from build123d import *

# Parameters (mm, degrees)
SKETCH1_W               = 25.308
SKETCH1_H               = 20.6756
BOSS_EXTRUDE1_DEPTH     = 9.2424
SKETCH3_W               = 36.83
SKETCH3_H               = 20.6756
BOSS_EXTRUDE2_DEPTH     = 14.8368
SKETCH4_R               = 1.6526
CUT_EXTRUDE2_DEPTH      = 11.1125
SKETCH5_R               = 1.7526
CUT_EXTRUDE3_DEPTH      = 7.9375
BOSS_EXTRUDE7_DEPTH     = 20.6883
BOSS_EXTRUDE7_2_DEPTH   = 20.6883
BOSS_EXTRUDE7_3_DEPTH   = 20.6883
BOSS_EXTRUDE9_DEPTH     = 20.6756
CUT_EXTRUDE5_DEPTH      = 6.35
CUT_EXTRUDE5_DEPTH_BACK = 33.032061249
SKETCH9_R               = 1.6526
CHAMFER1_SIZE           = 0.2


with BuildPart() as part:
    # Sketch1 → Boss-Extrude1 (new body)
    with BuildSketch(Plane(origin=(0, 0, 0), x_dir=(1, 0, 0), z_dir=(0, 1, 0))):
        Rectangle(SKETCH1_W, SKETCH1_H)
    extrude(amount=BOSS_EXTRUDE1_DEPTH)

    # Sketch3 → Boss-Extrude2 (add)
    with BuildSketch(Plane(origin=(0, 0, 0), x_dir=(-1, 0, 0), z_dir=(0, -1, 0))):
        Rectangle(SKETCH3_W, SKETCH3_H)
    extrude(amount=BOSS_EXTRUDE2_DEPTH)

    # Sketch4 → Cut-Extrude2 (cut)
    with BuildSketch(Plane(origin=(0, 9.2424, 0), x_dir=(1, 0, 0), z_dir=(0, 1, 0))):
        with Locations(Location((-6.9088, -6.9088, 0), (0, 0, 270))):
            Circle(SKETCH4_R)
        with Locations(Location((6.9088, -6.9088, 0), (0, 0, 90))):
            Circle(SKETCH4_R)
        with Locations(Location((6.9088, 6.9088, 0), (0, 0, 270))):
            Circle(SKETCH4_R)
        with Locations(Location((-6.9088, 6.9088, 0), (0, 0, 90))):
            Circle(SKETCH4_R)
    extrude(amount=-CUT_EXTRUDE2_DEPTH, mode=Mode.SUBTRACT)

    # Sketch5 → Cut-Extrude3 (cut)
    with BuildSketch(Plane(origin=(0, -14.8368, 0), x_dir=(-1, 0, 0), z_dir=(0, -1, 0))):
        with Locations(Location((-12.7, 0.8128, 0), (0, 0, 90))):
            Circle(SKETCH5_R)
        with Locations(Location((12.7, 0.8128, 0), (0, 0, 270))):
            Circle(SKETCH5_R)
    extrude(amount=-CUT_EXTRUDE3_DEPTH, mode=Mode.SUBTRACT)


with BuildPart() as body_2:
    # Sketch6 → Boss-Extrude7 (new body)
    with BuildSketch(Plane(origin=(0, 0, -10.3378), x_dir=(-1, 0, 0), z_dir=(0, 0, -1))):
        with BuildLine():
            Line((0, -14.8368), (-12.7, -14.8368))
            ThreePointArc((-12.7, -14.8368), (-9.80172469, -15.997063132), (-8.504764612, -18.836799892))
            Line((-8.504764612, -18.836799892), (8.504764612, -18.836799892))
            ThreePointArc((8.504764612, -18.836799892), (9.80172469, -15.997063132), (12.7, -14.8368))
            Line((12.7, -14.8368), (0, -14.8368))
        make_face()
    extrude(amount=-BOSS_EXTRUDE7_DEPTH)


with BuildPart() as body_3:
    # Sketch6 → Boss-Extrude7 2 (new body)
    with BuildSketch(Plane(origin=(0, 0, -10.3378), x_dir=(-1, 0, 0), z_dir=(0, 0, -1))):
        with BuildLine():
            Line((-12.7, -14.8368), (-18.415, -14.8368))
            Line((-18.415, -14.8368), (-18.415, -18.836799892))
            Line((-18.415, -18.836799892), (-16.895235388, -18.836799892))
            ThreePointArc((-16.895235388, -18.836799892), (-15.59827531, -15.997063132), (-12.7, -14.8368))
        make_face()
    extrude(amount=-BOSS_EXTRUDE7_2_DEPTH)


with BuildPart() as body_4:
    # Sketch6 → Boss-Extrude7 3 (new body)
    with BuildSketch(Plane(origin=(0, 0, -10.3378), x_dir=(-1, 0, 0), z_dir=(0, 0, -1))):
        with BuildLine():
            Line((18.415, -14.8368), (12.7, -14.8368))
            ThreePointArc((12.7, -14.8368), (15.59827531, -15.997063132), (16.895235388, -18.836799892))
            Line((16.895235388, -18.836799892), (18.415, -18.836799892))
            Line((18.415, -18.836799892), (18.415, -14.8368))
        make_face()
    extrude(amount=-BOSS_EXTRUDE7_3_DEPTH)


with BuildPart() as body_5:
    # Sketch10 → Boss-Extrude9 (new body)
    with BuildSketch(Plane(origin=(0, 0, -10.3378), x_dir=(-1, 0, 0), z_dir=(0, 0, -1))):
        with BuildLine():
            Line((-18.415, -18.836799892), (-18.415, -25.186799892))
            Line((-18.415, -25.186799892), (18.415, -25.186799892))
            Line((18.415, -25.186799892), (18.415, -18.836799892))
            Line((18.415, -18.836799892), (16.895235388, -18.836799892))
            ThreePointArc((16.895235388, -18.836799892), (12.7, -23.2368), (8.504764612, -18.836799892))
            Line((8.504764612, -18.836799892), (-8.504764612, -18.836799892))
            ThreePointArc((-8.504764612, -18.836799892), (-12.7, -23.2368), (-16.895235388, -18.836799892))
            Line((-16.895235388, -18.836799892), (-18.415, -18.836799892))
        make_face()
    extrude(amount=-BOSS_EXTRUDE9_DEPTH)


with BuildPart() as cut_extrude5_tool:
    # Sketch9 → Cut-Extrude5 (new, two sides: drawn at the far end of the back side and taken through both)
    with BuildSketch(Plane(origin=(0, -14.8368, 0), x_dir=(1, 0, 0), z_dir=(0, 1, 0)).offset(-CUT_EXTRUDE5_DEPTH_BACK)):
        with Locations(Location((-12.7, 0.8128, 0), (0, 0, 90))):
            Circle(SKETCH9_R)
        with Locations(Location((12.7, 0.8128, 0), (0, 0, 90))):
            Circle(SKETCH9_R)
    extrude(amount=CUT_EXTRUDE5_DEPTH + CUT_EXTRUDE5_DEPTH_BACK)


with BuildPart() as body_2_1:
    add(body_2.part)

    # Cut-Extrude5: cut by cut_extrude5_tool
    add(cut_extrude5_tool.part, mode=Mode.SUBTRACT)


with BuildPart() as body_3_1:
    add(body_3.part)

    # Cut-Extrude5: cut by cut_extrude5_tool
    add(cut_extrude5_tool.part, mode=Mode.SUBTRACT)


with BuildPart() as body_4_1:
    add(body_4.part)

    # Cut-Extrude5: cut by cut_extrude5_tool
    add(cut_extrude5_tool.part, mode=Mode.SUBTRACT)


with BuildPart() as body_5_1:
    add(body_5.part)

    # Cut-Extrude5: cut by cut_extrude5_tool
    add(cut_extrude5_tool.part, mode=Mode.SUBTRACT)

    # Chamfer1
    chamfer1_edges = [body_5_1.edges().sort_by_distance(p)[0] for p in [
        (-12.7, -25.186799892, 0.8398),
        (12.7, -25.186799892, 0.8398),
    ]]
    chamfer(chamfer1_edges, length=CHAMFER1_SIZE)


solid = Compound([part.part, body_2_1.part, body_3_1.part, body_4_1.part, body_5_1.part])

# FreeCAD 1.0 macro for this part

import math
import FreeCAD as App
import Part
import Sketcher
Q = App.Units.Quantity


def edges_at(feature, points):
    """Names of the edges that pass closest to the given points."""
    edges = feature.Shape.Edges
    near = lambda p: min(range(len(edges)), key=lambda i: edges[i].distToShape(Part.Vertex(*p))[0])
    return sorted({f"Edge{near(p) + 1}" for p in points})


def add_polygon(sketch, points):
    """Adds a closed chain of lines whose ends are joined by coincident constraints."""
    first, n = sketch.GeometryCount, len(points)
    for a, b in zip(points, points[1:] + points[:1]):
        sketch.addGeometry(Part.LineSegment(App.Vector(*a, 0), App.Vector(*b, 0)), False)
    for i in range(n):
        sketch.addConstraint(Sketcher.Constraint("Coincident", first + i, 2, first + (i + 1) % n, 1))

doc = App.newDocument("Part")
body = doc.addObject("PartDesign::Body", "Body")

sketch1 = body.newObject("Sketcher::SketchObject", "Sketch")
sketch1.AttachmentSupport = (doc.getObject("XZ_Plane"), [""])
sketch1.MapMode = "FlatFace"
add_polygon(sketch1, [(-13, -10), (-13, 10), (13, 10), (13, -10)])
sketch1.addConstraint([
    Sketcher.Constraint("Vertical", 0),
    Sketcher.Constraint("Horizontal", 1),
    Sketcher.Constraint("Vertical", 2),
    Sketcher.Constraint("Horizontal", 3),
    Sketcher.Constraint("Symmetric", 0, 2, 2, 2, -1, 1),
    Sketcher.Constraint("DistanceY", 0, 1, 0, 2, Q("0.814 in")),
    Sketcher.Constraint("DistanceX", 1, 1, 1, 2, Q("25.308 mm")),
])
pad1 = body.newObject("PartDesign::Pad", "Pad")
pad1.Profile = sketch1
pad1.Length = 9.2424
pad1.Reversed = True

sketch2 = body.newObject("Sketcher::SketchObject", "Sketch001")
sketch2.AttachmentSupport = (doc.getObject("XZ_Plane"), [""])
sketch2.MapMode = "FlatFace"
add_polygon(sketch2, [(18, -10), (18, 10), (-18, 10), (-18, -10)])
sketch2.addConstraint([
    Sketcher.Constraint("Vertical", 0),
    Sketcher.Constraint("Horizontal", 1),
    Sketcher.Constraint("Vertical", 2),
    Sketcher.Constraint("Horizontal", 3),
    Sketcher.Constraint("Symmetric", 0, 2, 2, 2, -1, 1),
    Sketcher.Constraint("DistanceX", 1, 2, 1, 1, Q("1.45 in")),
    Sketcher.Constraint("DistanceY", 0, 1, 0, 2, Q("0.814 in")),
])
pad2 = body.newObject("PartDesign::Pad", "Pad001")
pad2.Profile = sketch2
pad2.Length = 14.8368

sketch3 = body.newObject("Sketcher::SketchObject", "Sketch002")
sketch3.AttachmentSupport = (doc.getObject("XZ_Plane"), [""])
sketch3.MapMode = "FlatFace"
sketch3.AttachmentOffset = App.Placement(App.Vector(0, 0, -9.2424), App.Rotation())
sketch3.addGeometry([
    Part.Circle(App.Vector(-6.9, 6.9, 0), App.Vector(0, 0, 1), 1.7),
    Part.Circle(App.Vector(6.9, 6.9, 0), App.Vector(0, 0, 1), 1.7),
    Part.Circle(App.Vector(6.9, -6.9, 0), App.Vector(0, 0, 1), 1.7),
    Part.Circle(App.Vector(-6.9, -6.9, 0), App.Vector(0, 0, 1), 1.7),
], False)
sketch3.addConstraint([
    Sketcher.Constraint("Equal", 0, 1),
    Sketcher.Constraint("Equal", 1, 2),
    Sketcher.Constraint("Equal", 2, 3),
    Sketcher.Constraint("Symmetric", 0, 3, 2, 3, -1, 1),
    Sketcher.Constraint("Symmetric", 1, 3, 3, 3, -1, 1),
    Sketcher.Constraint("Symmetric", 0, 3, 1, 3, -2),
    Sketcher.Constraint("Diameter", 0, Q("3.3052 mm")),
    Sketcher.Constraint("DistanceX", 0, 3, -1, 1, Q("0.272 in")),
    Sketcher.Constraint("DistanceY", -1, 1, 0, 3, Q("0.272 in")),
])
pocket1 = body.newObject("PartDesign::Pocket", "Pocket")
pocket1.Profile = sketch3
pocket1.Length = Q("0.4375 in")
pocket1.Reversed = True

sketch4 = body.newObject("Sketcher::SketchObject", "Sketch003")
sketch4.AttachmentSupport = (doc.getObject("XZ_Plane"), [""])
sketch4.MapMode = "FlatFace"
sketch4.AttachmentOffset = App.Placement(App.Vector(0, 0, 14.8368), App.Rotation())
sketch4.addGeometry([
    Part.Circle(App.Vector(12.7, -0.8, 0), App.Vector(0, 0, 1), 1.8),
    Part.Circle(App.Vector(-12.7, -0.8, 0), App.Vector(0, 0, 1), 1.8),
], False)
sketch4.addConstraint([
    Sketcher.Constraint("Equal", 0, 1),
    Sketcher.Constraint("Symmetric", 0, 3, 1, 3, -2),
    Sketcher.Constraint("Diameter", 0, Q("0.138 in")),
    Sketcher.Constraint("DistanceX", 1, 3, 0, 3, Q("1 in")),
    Sketcher.Constraint("DistanceY", 0, 3, -1, 1, Q("0.032 in")),
])
pocket2 = body.newObject("PartDesign::Pocket", "Pocket001")
pocket2.Profile = sketch4
pocket2.Length = Q("0.3125 in")
body2 = doc.addObject("PartDesign::Body", "Body001")

sketch5 = body2.newObject("Sketcher::SketchObject", "Sketch004")
sketch5.AttachmentSupport = (doc.getObject("XY_Plane001"), [""])
sketch5.MapMode = "FlatFace"
sketch5.AttachmentOffset = App.Placement(App.Vector(0, 0, -0.407 * 25.4), App.Rotation())
sketch5.addGeometry([
    Part.ArcOfCircle(Part.Circle(App.Vector(12.7, -19, 0), App.Vector(0, 0, 1), 4.2), math.radians(90), math.radians(177)),
    Part.LineSegment(App.Vector(8.5, -18.8, 0), App.Vector(-8.5, -18.8, 0)),
    Part.ArcOfCircle(Part.Circle(App.Vector(-12.7, -19, 0), App.Vector(0, 0, 1), 4.2), math.radians(3), math.radians(90)),
    Part.LineSegment(App.Vector(-12.7, -14.8, 0), App.Vector(12.7, -14.8, 0)),
], False)
sketch5.addConstraint([
    Sketcher.Constraint("Coincident", 0, 2, 1, 1),
    Sketcher.Constraint("Coincident", 1, 2, 2, 1),
    Sketcher.Constraint("Tangent", 2, 2, 3, 1),
    Sketcher.Constraint("Tangent", 3, 2, 0, 1),
    Sketcher.Constraint("Horizontal", 1),
    Sketcher.Constraint("Horizontal", 3),
    Sketcher.Constraint("Equal", 0, 2),
    Sketcher.Constraint("DistanceX", 3, 1, 3, 2, Q("1 in")),
    Sketcher.Constraint("DistanceX", -1, 1, 0, 3, Q("0.5 in")),
    Sketcher.Constraint("Radius", 0, Q("4.2 mm")),
    Sketcher.Constraint("DistanceX", 1, 2, 1, 1, Q("17.009529 mm")),
    Sketcher.Constraint("DistanceY", 0, 3, -1, 1, Q("19.0368 mm")),
])
pad3 = body2.newObject("PartDesign::Pad", "Pad002")
pad3.Profile = sketch5
pad3.Length = Q("0.8145 in")
body3 = doc.addObject("PartDesign::Body", "Body002")

sketch6 = body3.newObject("Sketcher::SketchObject", "Sketch005")
sketch6.AttachmentSupport = (doc.getObject("XY_Plane002"), [""])
sketch6.MapMode = "FlatFace"
sketch6.AttachmentOffset = App.Placement(App.Vector(0, 0, -0.407 * 25.4), App.Rotation())
sketch6.addGeometry([
    Part.LineSegment(App.Vector(12.7, -14.8, 0), App.Vector(18.4, -14.8, 0)),
    Part.LineSegment(App.Vector(18.4, -14.8, 0), App.Vector(18.4, -18.8, 0)),
    Part.LineSegment(App.Vector(18.4, -18.8, 0), App.Vector(16.9, -18.8, 0)),
    Part.ArcOfCircle(Part.Circle(App.Vector(12.7, -19, 0), App.Vector(0, 0, 1), 4.2), math.radians(3), math.radians(90)),
], False)
sketch6.addConstraint([
    Sketcher.Constraint("Coincident", 0, 2, 1, 1),
    Sketcher.Constraint("Coincident", 1, 2, 2, 1),
    Sketcher.Constraint("Coincident", 2, 2, 3, 1),
    Sketcher.Constraint("Tangent", 3, 2, 0, 1),
    Sketcher.Constraint("Horizontal", 0),
    Sketcher.Constraint("Vertical", 1),
    Sketcher.Constraint("Horizontal", 2),
    Sketcher.Constraint("DistanceX", -1, 1, 3, 3, Q("0.5 in")),
    Sketcher.Constraint("DistanceX", 0, 1, 0, 2, Q("0.225 in")),
    Sketcher.Constraint("Radius", 3, Q("4.2 mm")),
    Sketcher.Constraint("DistanceY", 1, 2, 1, 1, Q("4 mm")),
    Sketcher.Constraint("DistanceY", 3, 3, -1, 1, Q("19.0368 mm")),
])
pad4 = body3.newObject("PartDesign::Pad", "Pad003")
pad4.Profile = sketch6
pad4.Length = Q("0.8145 in")
body4 = doc.addObject("PartDesign::Body", "Body003")

sketch7 = body4.newObject("Sketcher::SketchObject", "Sketch006")
sketch7.AttachmentSupport = (doc.getObject("XY_Plane003"), [""])
sketch7.MapMode = "FlatFace"
sketch7.AttachmentOffset = App.Placement(App.Vector(0, 0, -0.407 * 25.4), App.Rotation())
sketch7.addGeometry([
    Part.LineSegment(App.Vector(-18.4, -14.8, 0), App.Vector(-12.7, -14.8, 0)),
    Part.ArcOfCircle(Part.Circle(App.Vector(-12.7, -19, 0), App.Vector(0, 0, 1), 4.2), math.radians(90), math.radians(177)),
    Part.LineSegment(App.Vector(-16.9, -18.8, 0), App.Vector(-18.4, -18.8, 0)),
    Part.LineSegment(App.Vector(-18.4, -18.8, 0), App.Vector(-18.4, -14.8, 0)),
], False)
sketch7.addConstraint([
    Sketcher.Constraint("Tangent", 0, 2, 1, 1),
    Sketcher.Constraint("Coincident", 1, 2, 2, 1),
    Sketcher.Constraint("Coincident", 2, 2, 3, 1),
    Sketcher.Constraint("Coincident", 3, 2, 0, 1),
    Sketcher.Constraint("Horizontal", 0),
    Sketcher.Constraint("Horizontal", 2),
    Sketcher.Constraint("Vertical", 3),
    Sketcher.Constraint("DistanceX", 1, 3, -1, 1, Q("0.5 in")),
    Sketcher.Constraint("DistanceX", 0, 1, 0, 2, Q("0.225 in")),
    Sketcher.Constraint("Radius", 1, Q("4.2 mm")),
    Sketcher.Constraint("DistanceY", 3, 1, 3, 2, Q("4 mm")),
    Sketcher.Constraint("DistanceY", 1, 3, -1, 1, Q("19.0368 mm")),
])
pad5 = body4.newObject("PartDesign::Pad", "Pad004")
pad5.Profile = sketch7
pad5.Length = Q("0.8145 in")
body5 = doc.addObject("PartDesign::Body", "Body004")

sketch8 = body5.newObject("Sketcher::SketchObject", "Sketch007")
sketch8.AttachmentSupport = (doc.getObject("XY_Plane004"), [""])
sketch8.MapMode = "FlatFace"
sketch8.AttachmentOffset = App.Placement(App.Vector(0, 0, -0.407 * 25.4), App.Rotation())
sketch8.addGeometry([
    Part.LineSegment(App.Vector(18.4, -18.8, 0), App.Vector(18.4, -25.2, 0)),
    Part.LineSegment(App.Vector(18.4, -25.2, 0), App.Vector(-18.4, -25.2, 0)),
    Part.LineSegment(App.Vector(-18.4, -25.2, 0), App.Vector(-18.4, -18.8, 0)),
    Part.LineSegment(App.Vector(-18.4, -18.8, 0), App.Vector(-16.9, -18.8, 0)),
    Part.ArcOfCircle(Part.Circle(App.Vector(-12.7, -19, 0), App.Vector(0, 0, 1), 4.2), math.radians(177), math.radians(363)),
    Part.LineSegment(App.Vector(-8.5, -18.8, 0), App.Vector(8.5, -18.8, 0)),
    Part.ArcOfCircle(Part.Circle(App.Vector(12.7, -19, 0), App.Vector(0, 0, 1), 4.2), math.radians(177), math.radians(363)),
    Part.LineSegment(App.Vector(16.9, -18.8, 0), App.Vector(18.4, -18.8, 0)),
], False)
sketch8.addConstraint([
    Sketcher.Constraint("Coincident", 0, 2, 1, 1),
    Sketcher.Constraint("Coincident", 1, 2, 2, 1),
    Sketcher.Constraint("Coincident", 2, 2, 3, 1),
    Sketcher.Constraint("Coincident", 3, 2, 4, 1),
    Sketcher.Constraint("Coincident", 4, 2, 5, 1),
    Sketcher.Constraint("Coincident", 5, 2, 6, 1),
    Sketcher.Constraint("Coincident", 6, 2, 7, 1),
    Sketcher.Constraint("Coincident", 7, 2, 0, 1),
    Sketcher.Constraint("Vertical", 0),
    Sketcher.Constraint("Horizontal", 1),
    Sketcher.Constraint("Vertical", 2),
    Sketcher.Constraint("Horizontal", 3),
    Sketcher.Constraint("Horizontal", 5),
    Sketcher.Constraint("Horizontal", 7),
    Sketcher.Constraint("Equal", 4, 6),
    Sketcher.Constraint("Symmetric", 4, 3, 6, 3, -2),
    Sketcher.Constraint("Symmetric", 2, 2, 7, 2, -2),
    Sketcher.Constraint("Horizontal", 3, 2, 4, 2),
    Sketcher.Constraint("DistanceX", 4, 3, 6, 3, Q("1 in")),
    Sketcher.Constraint("DistanceX", 1, 2, 1, 1, Q("1.45 in")),
    Sketcher.Constraint("DistanceY", 0, 2, 0, 1, Q("0.25 in")),
    Sketcher.Constraint("Radius", 4, Q("4.2 mm")),
    Sketcher.Constraint("DistanceX", 5, 1, 5, 2, Q("17.009529 mm")),
    Sketcher.Constraint("DistanceY", 4, 3, -1, 1, Q("19.0368 mm")),
])
pad6 = body5.newObject("PartDesign::Pad", "Pad005")
pad6.Profile = sketch8
pad6.Length = Q("0.814 in")
body6 = doc.addObject("PartDesign::Body", "Body005")
body6.AllowCompound = True

sketch9 = body6.newObject("Sketcher::SketchObject", "Sketch008")
sketch9.AttachmentSupport = (doc.getObject("XZ_Plane005"), [""])
sketch9.MapMode = "FlatFace"
sketch9.AttachmentOffset = App.Placement(App.Vector(0, 0, 14.8368), App.Rotation())
sketch9.addGeometry([
    Part.Circle(App.Vector(-12.7, -0.8, 0), App.Vector(0, 0, 1), 1.7),
    Part.Circle(App.Vector(12.7, -0.8, 0), App.Vector(0, 0, 1), 1.7),
], False)
sketch9.addConstraint([
    Sketcher.Constraint("Equal", 0, 1),
    Sketcher.Constraint("Symmetric", 0, 3, 1, 3, -2),
    Sketcher.Constraint("DistanceX", 0, 3, 1, 3, Q("1 in")),
    Sketcher.Constraint("Diameter", 0, Q("3.3052 mm")),
    Sketcher.Constraint("DistanceY", 0, 3, -1, 1, Q("0.032 in")),
])
pad7 = body6.newObject("PartDesign::Pad", "Pad006")
pad7.Profile = sketch9
pad7.Type = "TwoLengths"
pad7.Length = Q("0.25 in")
pad7.Length2 = 33.032061
pad7.Reversed = True
doc.recompute()

body7 = doc.addObject("PartDesign::Body", "Body006")
body7.BaseFeature = body6
boolean = body2.newObject("PartDesign::Boolean", "Boolean")
boolean.Type = "Cut"
boolean.addObjects([body7])
doc.recompute()

body8 = doc.addObject("PartDesign::Body", "Body007")
body8.BaseFeature = body6
boolean2 = body3.newObject("PartDesign::Boolean", "Boolean001")
boolean2.Type = "Cut"
boolean2.addObjects([body8])
doc.recompute()

body9 = doc.addObject("PartDesign::Body", "Body008")
body9.BaseFeature = body6
boolean3 = body4.newObject("PartDesign::Boolean", "Boolean002")
boolean3.Type = "Cut"
boolean3.addObjects([body9])
doc.recompute()

boolean4 = body5.newObject("PartDesign::Boolean", "Boolean003")
boolean4.Type = "Cut"
boolean4.addObjects([body6])
doc.recompute()

chamfer = body5.newObject("PartDesign::Chamfer", "Chamfer")
chamfer.Base = (boolean4, edges_at(boolean4, [(-12.7, -25.187, 0.84), (12.7, -25.187, 0.84)]))
chamfer.Size = 0.2

doc.recompute()
